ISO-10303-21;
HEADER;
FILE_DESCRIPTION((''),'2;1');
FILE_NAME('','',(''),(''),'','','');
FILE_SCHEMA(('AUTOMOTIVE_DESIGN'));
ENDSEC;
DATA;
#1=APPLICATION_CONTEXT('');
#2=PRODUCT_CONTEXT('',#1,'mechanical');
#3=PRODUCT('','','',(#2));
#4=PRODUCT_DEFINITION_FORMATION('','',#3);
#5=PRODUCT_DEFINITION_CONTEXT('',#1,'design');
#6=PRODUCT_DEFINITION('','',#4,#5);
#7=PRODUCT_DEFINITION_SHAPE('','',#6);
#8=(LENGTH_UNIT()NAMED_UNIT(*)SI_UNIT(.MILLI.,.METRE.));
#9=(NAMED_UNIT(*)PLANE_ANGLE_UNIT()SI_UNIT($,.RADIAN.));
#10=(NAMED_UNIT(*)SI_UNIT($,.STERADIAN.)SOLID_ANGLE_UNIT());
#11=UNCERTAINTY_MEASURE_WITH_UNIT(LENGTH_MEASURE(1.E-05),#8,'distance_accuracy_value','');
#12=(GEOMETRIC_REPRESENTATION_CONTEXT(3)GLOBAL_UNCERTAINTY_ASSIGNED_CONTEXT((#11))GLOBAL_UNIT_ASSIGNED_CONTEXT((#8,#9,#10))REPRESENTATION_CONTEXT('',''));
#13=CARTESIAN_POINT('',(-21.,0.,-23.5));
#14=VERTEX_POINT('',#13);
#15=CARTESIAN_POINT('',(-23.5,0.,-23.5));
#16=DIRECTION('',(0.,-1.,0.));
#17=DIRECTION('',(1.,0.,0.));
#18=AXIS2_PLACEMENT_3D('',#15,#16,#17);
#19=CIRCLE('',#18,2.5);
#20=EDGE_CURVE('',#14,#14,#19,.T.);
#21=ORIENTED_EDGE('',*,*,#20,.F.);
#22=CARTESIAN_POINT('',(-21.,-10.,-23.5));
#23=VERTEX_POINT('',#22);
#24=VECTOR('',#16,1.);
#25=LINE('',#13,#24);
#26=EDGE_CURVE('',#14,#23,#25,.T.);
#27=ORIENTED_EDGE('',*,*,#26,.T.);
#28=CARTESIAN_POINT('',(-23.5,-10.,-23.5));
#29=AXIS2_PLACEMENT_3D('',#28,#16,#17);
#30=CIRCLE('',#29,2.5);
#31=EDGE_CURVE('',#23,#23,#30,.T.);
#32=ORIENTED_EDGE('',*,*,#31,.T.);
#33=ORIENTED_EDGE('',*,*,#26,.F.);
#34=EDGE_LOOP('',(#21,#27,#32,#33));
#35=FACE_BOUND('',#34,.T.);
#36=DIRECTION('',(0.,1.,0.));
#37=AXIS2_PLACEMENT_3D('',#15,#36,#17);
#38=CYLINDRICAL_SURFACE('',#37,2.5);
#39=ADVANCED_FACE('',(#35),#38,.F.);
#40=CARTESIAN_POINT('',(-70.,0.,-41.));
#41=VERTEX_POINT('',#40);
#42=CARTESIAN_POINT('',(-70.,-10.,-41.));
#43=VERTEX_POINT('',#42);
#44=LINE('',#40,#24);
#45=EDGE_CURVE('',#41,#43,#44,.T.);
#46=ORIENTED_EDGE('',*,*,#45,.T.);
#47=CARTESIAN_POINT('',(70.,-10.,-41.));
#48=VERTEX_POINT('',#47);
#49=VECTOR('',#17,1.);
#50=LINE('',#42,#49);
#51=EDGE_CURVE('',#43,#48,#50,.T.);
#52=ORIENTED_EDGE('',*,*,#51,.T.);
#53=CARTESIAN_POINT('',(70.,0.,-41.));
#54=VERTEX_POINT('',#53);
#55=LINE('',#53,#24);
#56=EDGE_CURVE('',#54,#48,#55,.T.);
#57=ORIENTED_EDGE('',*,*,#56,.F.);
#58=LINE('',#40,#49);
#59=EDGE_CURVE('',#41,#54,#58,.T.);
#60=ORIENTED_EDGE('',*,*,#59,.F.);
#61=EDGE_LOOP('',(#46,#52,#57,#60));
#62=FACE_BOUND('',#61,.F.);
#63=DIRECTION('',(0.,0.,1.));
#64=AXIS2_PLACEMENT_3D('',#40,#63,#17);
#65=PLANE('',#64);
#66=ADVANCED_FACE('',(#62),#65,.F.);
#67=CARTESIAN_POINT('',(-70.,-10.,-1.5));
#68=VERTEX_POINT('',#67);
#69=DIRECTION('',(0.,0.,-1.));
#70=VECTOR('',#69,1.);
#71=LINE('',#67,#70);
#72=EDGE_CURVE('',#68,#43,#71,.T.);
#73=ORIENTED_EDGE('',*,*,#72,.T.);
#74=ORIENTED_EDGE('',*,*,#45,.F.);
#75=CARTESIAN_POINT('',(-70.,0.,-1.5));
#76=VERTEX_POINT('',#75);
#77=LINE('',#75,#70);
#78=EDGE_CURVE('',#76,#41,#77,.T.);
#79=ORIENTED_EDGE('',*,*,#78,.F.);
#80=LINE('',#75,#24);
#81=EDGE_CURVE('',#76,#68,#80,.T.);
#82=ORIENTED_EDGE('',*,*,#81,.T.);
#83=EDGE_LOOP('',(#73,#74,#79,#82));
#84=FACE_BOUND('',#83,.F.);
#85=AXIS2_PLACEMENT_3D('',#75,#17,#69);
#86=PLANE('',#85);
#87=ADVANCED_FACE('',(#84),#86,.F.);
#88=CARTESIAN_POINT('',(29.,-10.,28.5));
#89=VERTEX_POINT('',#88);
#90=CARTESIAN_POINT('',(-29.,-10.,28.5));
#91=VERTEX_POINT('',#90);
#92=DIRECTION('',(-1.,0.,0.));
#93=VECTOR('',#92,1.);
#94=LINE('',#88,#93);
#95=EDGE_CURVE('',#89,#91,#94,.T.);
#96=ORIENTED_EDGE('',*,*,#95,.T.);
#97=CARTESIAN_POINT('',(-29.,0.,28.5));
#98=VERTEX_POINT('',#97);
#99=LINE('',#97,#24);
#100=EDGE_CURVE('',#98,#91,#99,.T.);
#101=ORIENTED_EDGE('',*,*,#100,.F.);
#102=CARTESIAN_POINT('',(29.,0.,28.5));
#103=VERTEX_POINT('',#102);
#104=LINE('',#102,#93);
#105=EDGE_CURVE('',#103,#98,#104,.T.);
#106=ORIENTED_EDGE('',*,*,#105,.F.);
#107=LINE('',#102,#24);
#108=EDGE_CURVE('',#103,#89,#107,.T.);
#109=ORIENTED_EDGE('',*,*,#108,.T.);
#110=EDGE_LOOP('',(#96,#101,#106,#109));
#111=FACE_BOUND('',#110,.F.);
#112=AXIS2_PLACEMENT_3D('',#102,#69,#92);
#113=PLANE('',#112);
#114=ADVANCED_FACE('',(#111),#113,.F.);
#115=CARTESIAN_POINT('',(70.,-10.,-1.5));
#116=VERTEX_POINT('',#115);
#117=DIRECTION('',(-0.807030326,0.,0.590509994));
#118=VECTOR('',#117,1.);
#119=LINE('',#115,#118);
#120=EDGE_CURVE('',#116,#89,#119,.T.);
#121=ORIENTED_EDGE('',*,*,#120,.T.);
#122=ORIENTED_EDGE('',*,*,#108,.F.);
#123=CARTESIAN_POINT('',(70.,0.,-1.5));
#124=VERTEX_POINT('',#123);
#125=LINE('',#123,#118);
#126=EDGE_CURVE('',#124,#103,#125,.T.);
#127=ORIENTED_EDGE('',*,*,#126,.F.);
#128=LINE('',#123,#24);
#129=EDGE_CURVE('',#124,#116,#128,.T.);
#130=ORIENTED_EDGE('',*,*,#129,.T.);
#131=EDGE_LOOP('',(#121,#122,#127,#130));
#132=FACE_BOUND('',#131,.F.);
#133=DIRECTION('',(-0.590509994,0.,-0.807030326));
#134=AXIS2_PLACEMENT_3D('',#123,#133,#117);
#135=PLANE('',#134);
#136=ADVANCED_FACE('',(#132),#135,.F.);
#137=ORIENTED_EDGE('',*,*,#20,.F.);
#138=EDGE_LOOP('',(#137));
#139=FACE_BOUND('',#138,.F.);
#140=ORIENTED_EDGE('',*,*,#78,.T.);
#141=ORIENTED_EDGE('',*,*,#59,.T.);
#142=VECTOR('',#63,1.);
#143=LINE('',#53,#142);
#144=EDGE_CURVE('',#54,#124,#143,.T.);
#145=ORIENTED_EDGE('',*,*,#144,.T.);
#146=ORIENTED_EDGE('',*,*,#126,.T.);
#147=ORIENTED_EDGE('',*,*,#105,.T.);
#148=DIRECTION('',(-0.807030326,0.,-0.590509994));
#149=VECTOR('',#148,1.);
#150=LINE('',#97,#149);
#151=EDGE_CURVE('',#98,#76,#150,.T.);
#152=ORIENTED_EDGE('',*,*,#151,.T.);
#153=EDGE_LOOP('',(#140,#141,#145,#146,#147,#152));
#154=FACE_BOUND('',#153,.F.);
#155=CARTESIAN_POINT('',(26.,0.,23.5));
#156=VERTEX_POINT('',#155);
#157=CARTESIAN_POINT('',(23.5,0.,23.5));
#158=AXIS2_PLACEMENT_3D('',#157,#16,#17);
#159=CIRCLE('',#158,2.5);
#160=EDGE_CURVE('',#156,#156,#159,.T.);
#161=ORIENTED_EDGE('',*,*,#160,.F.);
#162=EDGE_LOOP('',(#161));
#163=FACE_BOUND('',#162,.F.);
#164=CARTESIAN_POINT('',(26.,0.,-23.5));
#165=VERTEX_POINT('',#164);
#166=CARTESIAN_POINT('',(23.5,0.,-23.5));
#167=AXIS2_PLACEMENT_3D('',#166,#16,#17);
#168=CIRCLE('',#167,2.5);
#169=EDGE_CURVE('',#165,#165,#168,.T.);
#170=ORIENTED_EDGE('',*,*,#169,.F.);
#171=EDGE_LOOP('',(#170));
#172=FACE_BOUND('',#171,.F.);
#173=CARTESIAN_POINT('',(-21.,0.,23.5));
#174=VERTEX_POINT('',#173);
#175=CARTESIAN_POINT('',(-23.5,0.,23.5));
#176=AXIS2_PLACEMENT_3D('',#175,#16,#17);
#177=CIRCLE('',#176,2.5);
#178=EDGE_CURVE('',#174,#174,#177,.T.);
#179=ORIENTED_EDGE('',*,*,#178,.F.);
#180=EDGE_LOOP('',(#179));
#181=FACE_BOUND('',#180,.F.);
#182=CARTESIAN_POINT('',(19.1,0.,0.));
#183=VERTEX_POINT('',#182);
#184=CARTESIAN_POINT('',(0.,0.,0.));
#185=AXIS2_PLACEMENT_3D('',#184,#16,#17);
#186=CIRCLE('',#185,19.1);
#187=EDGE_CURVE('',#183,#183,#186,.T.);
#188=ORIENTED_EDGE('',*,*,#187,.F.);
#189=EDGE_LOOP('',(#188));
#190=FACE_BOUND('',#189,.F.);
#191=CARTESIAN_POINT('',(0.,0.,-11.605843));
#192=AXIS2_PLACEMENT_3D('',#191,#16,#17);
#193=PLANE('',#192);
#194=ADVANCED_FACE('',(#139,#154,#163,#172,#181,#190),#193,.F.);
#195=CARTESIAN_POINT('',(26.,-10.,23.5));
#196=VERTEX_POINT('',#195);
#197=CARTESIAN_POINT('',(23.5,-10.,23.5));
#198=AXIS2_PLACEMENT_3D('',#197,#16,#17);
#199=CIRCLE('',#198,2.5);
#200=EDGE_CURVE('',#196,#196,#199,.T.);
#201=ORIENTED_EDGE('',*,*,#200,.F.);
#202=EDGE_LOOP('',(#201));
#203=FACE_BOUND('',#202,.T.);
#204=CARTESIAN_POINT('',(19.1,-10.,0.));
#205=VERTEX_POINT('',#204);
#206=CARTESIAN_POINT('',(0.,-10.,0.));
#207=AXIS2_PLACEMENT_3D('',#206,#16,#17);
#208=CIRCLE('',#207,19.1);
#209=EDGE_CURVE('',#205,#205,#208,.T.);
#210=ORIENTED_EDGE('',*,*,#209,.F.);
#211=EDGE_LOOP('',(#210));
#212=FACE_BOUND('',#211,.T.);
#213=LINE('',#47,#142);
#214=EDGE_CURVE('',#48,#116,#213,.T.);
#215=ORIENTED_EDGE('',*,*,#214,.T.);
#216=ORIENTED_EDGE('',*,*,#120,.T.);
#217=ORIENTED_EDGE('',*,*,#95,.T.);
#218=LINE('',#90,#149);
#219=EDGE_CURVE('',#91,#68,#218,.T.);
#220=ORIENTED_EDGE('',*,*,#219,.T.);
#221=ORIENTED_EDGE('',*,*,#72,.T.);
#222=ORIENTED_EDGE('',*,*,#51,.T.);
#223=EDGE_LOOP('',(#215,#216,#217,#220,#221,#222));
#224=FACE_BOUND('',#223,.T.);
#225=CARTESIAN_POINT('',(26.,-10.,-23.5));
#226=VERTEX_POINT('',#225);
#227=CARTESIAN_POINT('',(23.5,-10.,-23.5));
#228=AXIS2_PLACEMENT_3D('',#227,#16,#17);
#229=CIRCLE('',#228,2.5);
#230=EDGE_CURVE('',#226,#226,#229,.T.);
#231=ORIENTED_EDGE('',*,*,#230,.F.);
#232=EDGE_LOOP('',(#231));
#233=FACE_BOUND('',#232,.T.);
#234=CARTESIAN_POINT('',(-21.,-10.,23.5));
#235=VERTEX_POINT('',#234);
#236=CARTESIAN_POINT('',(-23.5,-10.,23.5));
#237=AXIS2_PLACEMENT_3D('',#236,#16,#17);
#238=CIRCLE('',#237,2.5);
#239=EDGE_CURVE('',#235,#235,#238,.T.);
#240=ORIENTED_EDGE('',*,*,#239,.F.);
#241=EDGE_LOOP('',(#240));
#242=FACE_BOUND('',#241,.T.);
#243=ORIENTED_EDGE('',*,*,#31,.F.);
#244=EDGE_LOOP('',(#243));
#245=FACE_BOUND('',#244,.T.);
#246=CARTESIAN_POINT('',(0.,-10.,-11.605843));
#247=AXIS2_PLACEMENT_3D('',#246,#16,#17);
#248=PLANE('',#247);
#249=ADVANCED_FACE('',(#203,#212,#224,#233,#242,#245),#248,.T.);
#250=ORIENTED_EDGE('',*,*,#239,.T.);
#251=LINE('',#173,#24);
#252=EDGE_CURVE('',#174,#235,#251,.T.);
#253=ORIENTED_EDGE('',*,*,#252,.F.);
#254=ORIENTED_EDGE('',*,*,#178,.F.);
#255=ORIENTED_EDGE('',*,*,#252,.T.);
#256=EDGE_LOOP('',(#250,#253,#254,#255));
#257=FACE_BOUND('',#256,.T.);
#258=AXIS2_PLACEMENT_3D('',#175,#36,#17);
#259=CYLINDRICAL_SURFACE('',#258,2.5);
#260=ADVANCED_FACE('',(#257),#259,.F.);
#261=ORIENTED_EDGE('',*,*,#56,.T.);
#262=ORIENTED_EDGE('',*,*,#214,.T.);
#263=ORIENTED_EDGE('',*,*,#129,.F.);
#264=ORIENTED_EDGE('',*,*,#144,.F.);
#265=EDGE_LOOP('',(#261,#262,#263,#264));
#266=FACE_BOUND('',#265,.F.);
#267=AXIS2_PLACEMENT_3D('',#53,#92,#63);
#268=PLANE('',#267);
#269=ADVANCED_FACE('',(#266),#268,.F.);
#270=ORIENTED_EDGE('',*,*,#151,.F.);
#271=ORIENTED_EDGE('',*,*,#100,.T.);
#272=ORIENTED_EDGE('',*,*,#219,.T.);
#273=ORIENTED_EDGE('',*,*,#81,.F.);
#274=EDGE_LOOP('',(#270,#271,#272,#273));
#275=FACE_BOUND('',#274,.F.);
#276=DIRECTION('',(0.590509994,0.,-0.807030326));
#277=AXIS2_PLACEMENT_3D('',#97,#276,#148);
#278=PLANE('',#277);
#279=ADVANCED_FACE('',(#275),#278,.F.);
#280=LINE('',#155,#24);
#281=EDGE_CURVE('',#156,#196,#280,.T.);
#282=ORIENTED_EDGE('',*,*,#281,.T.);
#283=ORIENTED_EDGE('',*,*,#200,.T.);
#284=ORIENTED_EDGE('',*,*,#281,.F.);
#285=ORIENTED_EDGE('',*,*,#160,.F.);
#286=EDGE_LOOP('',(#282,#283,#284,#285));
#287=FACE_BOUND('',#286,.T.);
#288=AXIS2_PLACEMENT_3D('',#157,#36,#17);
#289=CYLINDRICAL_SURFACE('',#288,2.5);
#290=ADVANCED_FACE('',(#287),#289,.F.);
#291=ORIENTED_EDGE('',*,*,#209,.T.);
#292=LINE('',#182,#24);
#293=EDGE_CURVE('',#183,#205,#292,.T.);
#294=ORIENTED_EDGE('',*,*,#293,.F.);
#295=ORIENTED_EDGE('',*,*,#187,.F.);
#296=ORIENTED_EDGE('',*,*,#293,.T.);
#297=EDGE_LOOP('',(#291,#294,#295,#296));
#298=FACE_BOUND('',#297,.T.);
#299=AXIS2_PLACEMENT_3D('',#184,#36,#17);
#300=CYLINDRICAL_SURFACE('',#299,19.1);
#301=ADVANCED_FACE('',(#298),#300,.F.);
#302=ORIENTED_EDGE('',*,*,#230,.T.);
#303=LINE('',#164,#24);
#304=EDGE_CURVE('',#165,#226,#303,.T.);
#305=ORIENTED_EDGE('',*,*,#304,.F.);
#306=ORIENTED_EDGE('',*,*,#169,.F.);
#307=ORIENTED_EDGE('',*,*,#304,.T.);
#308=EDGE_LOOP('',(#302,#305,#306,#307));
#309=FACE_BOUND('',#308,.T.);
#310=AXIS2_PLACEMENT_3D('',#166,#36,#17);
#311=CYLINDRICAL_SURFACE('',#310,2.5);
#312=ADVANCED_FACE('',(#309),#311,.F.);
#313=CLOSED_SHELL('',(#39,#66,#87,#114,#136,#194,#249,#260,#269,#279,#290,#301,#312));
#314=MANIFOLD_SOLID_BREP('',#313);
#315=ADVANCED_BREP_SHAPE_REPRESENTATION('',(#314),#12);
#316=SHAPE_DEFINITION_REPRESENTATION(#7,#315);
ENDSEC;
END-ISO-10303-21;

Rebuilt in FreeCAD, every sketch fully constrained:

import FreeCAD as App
import Part
import Sketcher
from FreeCAD import Vector
Q = App.Units.Quantity

doc = App.newDocument("Part")
body = doc.addObject("PartDesign::Body", "Body")

sketch1 = doc.addObject("Sketcher::SketchObject", "Sketch")
body.addObject(sketch1)
sketch1.AttachmentSupport = (doc.XZ_Plane, [""])
sketch1.MapMode = "FlatFace"
sketch1.addGeometry([
    Part.LineSegment(Vector(29, 28.5, 0), Vector(-29, 28.5, 0)),
    Part.LineSegment(Vector(-29, 28.5, 0), Vector(-70, -1.5, 0)),
    Part.LineSegment(Vector(-70, -1.5, 0), Vector(-70, -41, 0)),
    Part.LineSegment(Vector(-70, -41, 0), Vector(70, -41, 0)),
    Part.LineSegment(Vector(70, -41, 0), Vector(70, -1.5, 0)),
    Part.LineSegment(Vector(70, -1.5, 0), Vector(29, 28.5, 0)),
    Part.Circle(Vector(-23.5, -23.5, 0), Vector(0, 0, 1), 2.5),
    Part.Circle(Vector(23.5, -23.5, 0), Vector(0, 0, 1), 2.5),
    Part.Circle(Vector(-23.5, 23.5, 0), Vector(0, 0, 1), 2.5),
    Part.Circle(Vector(0, 0, 0), Vector(0, 0, 1), 19.1),
    Part.Circle(Vector(23.5, 23.5, 0), Vector(0, 0, 1), 2.5),
], False)
sketch1.addConstraint([
    Sketcher.Constraint("Coincident", 0, 2, 1, 1),
    Sketcher.Constraint("Coincident", 1, 2, 2, 1),
    Sketcher.Constraint("Coincident", 2, 2, 3, 1),
    Sketcher.Constraint("Coincident", 3, 2, 4, 1),
    Sketcher.Constraint("Coincident", 4, 2, 5, 1),
    Sketcher.Constraint("Coincident", 5, 2, 0, 1),
    Sketcher.Constraint("Horizontal", 0),
    Sketcher.Constraint("Vertical", 2),
    Sketcher.Constraint("Horizontal", 3),
    Sketcher.Constraint("Vertical", 4),
    Sketcher.Constraint("Coincident", 9, 3, -1, 1),
    Sketcher.Constraint("Equal", 6, 7),
    Sketcher.Constraint("Equal", 7, 8),
    Sketcher.Constraint("Equal", 8, 10),
    Sketcher.Constraint("Symmetric", 7, 3, 8, 3, -1, 1),
    Sketcher.Constraint("Symmetric", 6, 3, 10, 3, -1, 1),
    Sketcher.Constraint("Symmetric", 6, 3, 7, 3, -2),
    Sketcher.Constraint("Symmetric", 1, 2, 4, 2, -2),
    Sketcher.Constraint("Equal", 1, 5),
    Sketcher.Constraint("Diameter", 6, Q("5 mm")),
    Sketcher.Constraint("Diameter", 9, Q("38.2 mm")),
    Sketcher.Constraint("DistanceX", 0, 2, 0, 1, Q("58 mm")),
    Sketcher.Constraint("DistanceX", 3, 1, 3, 2, Q("140 mm")),
    Sketcher.Constraint("DistanceY", 2, 2, 2, 1, Q("39.5 mm")),
    Sketcher.Constraint("DistanceY", 2, 2, -1, 1, Q("41 mm")),
    Sketcher.Constraint("DistanceX", 6, 3, 7, 3, Q("47 mm")),
    Sketcher.Constraint("DistanceY", 6, 3, 8, 3, Q("47 mm")),
    Sketcher.Constraint("DistanceY", 8, 3, 0, 2, Q("5 mm")),
])
pad1 = doc.addObject("PartDesign::Pad", "Pad")
body.addObject(pad1)
pad1.Profile = sketch1
pad1.Length = 10

doc.recompute()
